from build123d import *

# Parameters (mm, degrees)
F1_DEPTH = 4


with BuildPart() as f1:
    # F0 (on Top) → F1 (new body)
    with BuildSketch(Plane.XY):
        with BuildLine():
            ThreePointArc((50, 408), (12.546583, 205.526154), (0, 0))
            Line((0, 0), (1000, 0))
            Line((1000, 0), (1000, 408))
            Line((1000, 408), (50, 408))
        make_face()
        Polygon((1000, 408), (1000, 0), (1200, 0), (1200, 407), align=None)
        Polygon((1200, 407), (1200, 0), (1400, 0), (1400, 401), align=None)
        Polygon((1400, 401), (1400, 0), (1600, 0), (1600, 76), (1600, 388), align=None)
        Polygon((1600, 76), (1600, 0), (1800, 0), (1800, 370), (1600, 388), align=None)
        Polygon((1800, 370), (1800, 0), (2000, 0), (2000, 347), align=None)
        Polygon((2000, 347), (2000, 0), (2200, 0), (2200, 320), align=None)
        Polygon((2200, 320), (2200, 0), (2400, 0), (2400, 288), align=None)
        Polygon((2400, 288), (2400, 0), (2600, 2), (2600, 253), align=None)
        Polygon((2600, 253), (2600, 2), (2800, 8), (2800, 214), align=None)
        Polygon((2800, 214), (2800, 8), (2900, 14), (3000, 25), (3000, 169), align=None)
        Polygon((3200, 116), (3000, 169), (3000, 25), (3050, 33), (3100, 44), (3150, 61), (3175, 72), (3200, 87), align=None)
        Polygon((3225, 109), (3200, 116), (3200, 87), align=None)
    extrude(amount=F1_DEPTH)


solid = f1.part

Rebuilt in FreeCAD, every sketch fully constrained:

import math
import FreeCAD as App
import Part
import Sketcher
from FreeCAD import Vector
Q = App.Units.Quantity

doc = App.newDocument("Part")
body = doc.addObject("PartDesign::Body", "Body")

# Sketch on XY plane
sketch1 = body.newObject("Sketcher::SketchObject", "Sketch")
sketch1.AttachmentSupport = (doc.getObject("XY_Plane"), [""])
sketch1.MapMode = "FlatFace"
sketch1.addGeometry(Part.ArcOfCircle(Part.Circle(Vector(1690, 0, 0), Vector(0, 0, 1), 1690), math.radians(166.03), math.radians(180)), False)
sketch1.addGeometry(Part.LineSegment(Vector(0, 0, 0), Vector(2400, 0, 0)), False)
sketch1.addGeometry(Part.LineSegment(Vector(2400, 0, 0), Vector(2600, 2, 0)), False)
sketch1.addGeometry(Part.LineSegment(Vector(2600, 2, 0), Vector(2800, 8, 0)), False)
sketch1.addGeometry(Part.LineSegment(Vector(2800, 8, 0), Vector(2900, 14, 0)), False)
sketch1.addGeometry(Part.LineSegment(Vector(2900, 14, 0), Vector(3000, 25, 0)), False)
sketch1.addGeometry(Part.LineSegment(Vector(3000, 25, 0), Vector(3050, 33, 0)), False)
sketch1.addGeometry(Part.LineSegment(Vector(3050, 33, 0), Vector(3100, 44, 0)), False)
sketch1.addGeometry(Part.LineSegment(Vector(3100, 44, 0), Vector(3150, 61, 0)), False)
sketch1.addGeometry(Part.LineSegment(Vector(3150, 61, 0), Vector(3175, 72, 0)), False)
sketch1.addGeometry(Part.LineSegment(Vector(3175, 72, 0), Vector(3200, 87, 0)), False)
sketch1.addGeometry(Part.LineSegment(Vector(3200, 87, 0), Vector(3225, 109, 0)), False)
sketch1.addGeometry(Part.LineSegment(Vector(3225, 109, 0), Vector(3200, 116, 0)), False)
sketch1.addGeometry(Part.LineSegment(Vector(3200, 116, 0), Vector(3000, 169, 0)), False)
sketch1.addGeometry(Part.LineSegment(Vector(3000, 169, 0), Vector(2800, 214, 0)), False)
sketch1.addGeometry(Part.LineSegment(Vector(2800, 214, 0), Vector(2600, 253, 0)), False)
sketch1.addGeometry(Part.LineSegment(Vector(2600, 253, 0), Vector(2400, 288, 0)), False)
sketch1.addGeometry(Part.LineSegment(Vector(2400, 288, 0), Vector(2200, 320, 0)), False)
sketch1.addGeometry(Part.LineSegment(Vector(2200, 320, 0), Vector(2000, 347, 0)), False)
sketch1.addGeometry(Part.LineSegment(Vector(2000, 347, 0), Vector(1800, 370, 0)), False)
sketch1.addGeometry(Part.LineSegment(Vector(1800, 370, 0), Vector(1600, 388, 0)), False)
sketch1.addGeometry(Part.LineSegment(Vector(1600, 388, 0), Vector(1400, 401, 0)), False)
sketch1.addGeometry(Part.LineSegment(Vector(1400, 401, 0), Vector(1200, 407, 0)), False)
sketch1.addGeometry(Part.LineSegment(Vector(1200, 407, 0), Vector(1000, 408, 0)), False)
sketch1.addGeometry(Part.LineSegment(Vector(1000, 408, 0), Vector(50, 408, 0)), False)
sketch1.addConstraint(Sketcher.Constraint("Coincident", 0, 2, 1, 1))
sketch1.addConstraint(Sketcher.Constraint("Coincident", 1, 2, 2, 1))
sketch1.addConstraint(Sketcher.Constraint("Coincident", 2, 2, 3, 1))
sketch1.addConstraint(Sketcher.Constraint("Coincident", 3, 2, 4, 1))
sketch1.addConstraint(Sketcher.Constraint("Coincident", 4, 2, 5, 1))
sketch1.addConstraint(Sketcher.Constraint("Coincident", 5, 2, 6, 1))
sketch1.addConstraint(Sketcher.Constraint("Coincident", 6, 2, 7, 1))
sketch1.addConstraint(Sketcher.Constraint("Coincident", 7, 2, 8, 1))
sketch1.addConstraint(Sketcher.Constraint("Coincident", 8, 2, 9, 1))
sketch1.addConstraint(Sketcher.Constraint("Coincident", 9, 2, 10, 1))
sketch1.addConstraint(Sketcher.Constraint("Coincident", 10, 2, 11, 1))
sketch1.addConstraint(Sketcher.Constraint("Coincident", 11, 2, 12, 1))
sketch1.addConstraint(Sketcher.Constraint("Coincident", 12, 2, 13, 1))
sketch1.addConstraint(Sketcher.Constraint("Coincident", 13, 2, 14, 1))
sketch1.addConstraint(Sketcher.Constraint("Coincident", 14, 2, 15, 1))
sketch1.addConstraint(Sketcher.Constraint("Coincident", 15, 2, 16, 1))
sketch1.addConstraint(Sketcher.Constraint("Coincident", 16, 2, 17, 1))
sketch1.addConstraint(Sketcher.Constraint("Coincident", 17, 2, 18, 1))
sketch1.addConstraint(Sketcher.Constraint("Coincident", 18, 2, 19, 1))
sketch1.addConstraint(Sketcher.Constraint("Coincident", 19, 2, 20, 1))
sketch1.addConstraint(Sketcher.Constraint("Coincident", 20, 2, 21, 1))
sketch1.addConstraint(Sketcher.Constraint("Coincident", 21, 2, 22, 1))
sketch1.addConstraint(Sketcher.Constraint("Coincident", 22, 2, 23, 1))
sketch1.addConstraint(Sketcher.Constraint("Coincident", 23, 2, 24, 1))
sketch1.addConstraint(Sketcher.Constraint("Coincident", 24, 2, 0, 1))
sketch1.addConstraint(Sketcher.Constraint("Horizontal", 1))
sketch1.addConstraint(Sketcher.Constraint("Horizontal", 24))
sketch1.addConstraint(Sketcher.Constraint("PointOnObject", 0, 3, -1))
sketch1.addConstraint(Sketcher.Constraint("PointOnObject", 1, 2, -1))
sketch1.addConstraint(Sketcher.Constraint("Vertical", 10, 2, 12, 2))
sketch1.addConstraint(Sketcher.Constraint("Vertical", 5, 2, 13, 2))
sketch1.addConstraint(Sketcher.Constraint("Vertical", 3, 2, 14, 2))
sketch1.addConstraint(Sketcher.Constraint("Vertical", 2, 2, 15, 2))
sketch1.addConstraint(Sketcher.Constraint("Vertical", 1, 2, 16, 2))
sketch1.addConstraint(Sketcher.Constraint("Equal", 3, 22))
sketch1.addConstraint(Sketcher.Constraint("DistanceX", 1, 1, 1, 2, Q("2400 mm")))
sketch1.addConstraint(Sketcher.Constraint("DistanceX", 24, 2, 24, 1, Q("950 mm")))
sketch1.addConstraint(Sketcher.Constraint("Distance", 14, Q("205 mm")))
sketch1.addConstraint(Sketcher.Constraint("DistanceX", -1, 1, 1, 2, Q("2400 mm")))
sketch1.addConstraint(Sketcher.Constraint("DistanceX", -1, 1, 2, 2, Q("2600 mm")))
sketch1.addConstraint(Sketcher.Constraint("DistanceY", -1, 1, 2, 2, Q("2 mm")))
sketch1.addConstraint(Sketcher.Constraint("DistanceX", -1, 1, 3, 2, Q("2800 mm")))
sketch1.addConstraint(Sketcher.Constraint("DistanceY", -1, 1, 3, 2, Q("8 mm")))
sketch1.addConstraint(Sketcher.Constraint("DistanceX", -1, 1, 4, 2, Q("2900 mm")))
sketch1.addConstraint(Sketcher.Constraint("DistanceY", -1, 1, 4, 2, Q("14 mm")))
sketch1.addConstraint(Sketcher.Constraint("DistanceX", -1, 1, 5, 2, Q("3000 mm")))
sketch1.addConstraint(Sketcher.Constraint("DistanceY", -1, 1, 5, 2, Q("25 mm")))
sketch1.addConstraint(Sketcher.Constraint("DistanceX", -1, 1, 6, 2, Q("3050 mm")))
sketch1.addConstraint(Sketcher.Constraint("DistanceY", -1, 1, 6, 2, Q("33 mm")))
sketch1.addConstraint(Sketcher.Constraint("DistanceX", -1, 1, 7, 2, Q("3100 mm")))
sketch1.addConstraint(Sketcher.Constraint("DistanceY", -1, 1, 7, 2, Q("44 mm")))
sketch1.addConstraint(Sketcher.Constraint("DistanceX", -1, 1, 8, 2, Q("3150 mm")))
sketch1.addConstraint(Sketcher.Constraint("DistanceY", -1, 1, 8, 2, Q("61 mm")))
sketch1.addConstraint(Sketcher.Constraint("DistanceX", -1, 1, 9, 2, Q("3175 mm")))
sketch1.addConstraint(Sketcher.Constraint("DistanceY", -1, 1, 9, 2, Q("72 mm")))
sketch1.addConstraint(Sketcher.Constraint("DistanceX", -1, 1, 10, 2, Q("3200 mm")))
sketch1.addConstraint(Sketcher.Constraint("DistanceY", -1, 1, 10, 2, Q("87 mm")))
sketch1.addConstraint(Sketcher.Constraint("DistanceX", -1, 1, 11, 2, Q("3225 mm")))
sketch1.addConstraint(Sketcher.Constraint("DistanceY", -1, 1, 11, 2, Q("109 mm")))
sketch1.addConstraint(Sketcher.Constraint("DistanceY", -1, 1, 12, 2, Q("116 mm")))
sketch1.addConstraint(Sketcher.Constraint("DistanceY", -1, 1, 13, 2, Q("169 mm")))
sketch1.addConstraint(Sketcher.Constraint("DistanceY", -1, 1, 15, 2, Q("253 mm")))
sketch1.addConstraint(Sketcher.Constraint("DistanceY", -1, 1, 16, 2, Q("288 mm")))
sketch1.addConstraint(Sketcher.Constraint("DistanceX", -1, 1, 17, 2, Q("2200 mm")))
sketch1.addConstraint(Sketcher.Constraint("DistanceY", -1, 1, 17, 2, Q("320 mm")))
sketch1.addConstraint(Sketcher.Constraint("DistanceX", -1, 1, 18, 2, Q("2000 mm")))
sketch1.addConstraint(Sketcher.Constraint("DistanceY", -1, 1, 18, 2, Q("347 mm")))
sketch1.addConstraint(Sketcher.Constraint("DistanceX", -1, 1, 19, 2, Q("1800 mm")))
sketch1.addConstraint(Sketcher.Constraint("DistanceY", -1, 1, 19, 2, Q("370 mm")))
sketch1.addConstraint(Sketcher.Constraint("DistanceX", -1, 1, 20, 2, Q("1600 mm")))
sketch1.addConstraint(Sketcher.Constraint("DistanceY", -1, 1, 20, 2, Q("388 mm")))
sketch1.addConstraint(Sketcher.Constraint("DistanceX", -1, 1, 21, 2, Q("1400 mm")))
sketch1.addConstraint(Sketcher.Constraint("DistanceY", -1, 1, 21, 2, Q("401 mm")))
sketch1.addConstraint(Sketcher.Constraint("DistanceX", -1, 1, 22, 2, Q("1200 mm")))
sketch1.addConstraint(Sketcher.Constraint("DistanceX", -1, 1, 23, 2, Q("1000 mm")))
sketch1.addConstraint(Sketcher.Constraint("DistanceY", -1, 1, 23, 2, Q("408 mm")))
pad1 = body.newObject("PartDesign::Pad", "Pad")
pad1.Profile = sketch1
pad1.Length = 4

doc.recompute()
